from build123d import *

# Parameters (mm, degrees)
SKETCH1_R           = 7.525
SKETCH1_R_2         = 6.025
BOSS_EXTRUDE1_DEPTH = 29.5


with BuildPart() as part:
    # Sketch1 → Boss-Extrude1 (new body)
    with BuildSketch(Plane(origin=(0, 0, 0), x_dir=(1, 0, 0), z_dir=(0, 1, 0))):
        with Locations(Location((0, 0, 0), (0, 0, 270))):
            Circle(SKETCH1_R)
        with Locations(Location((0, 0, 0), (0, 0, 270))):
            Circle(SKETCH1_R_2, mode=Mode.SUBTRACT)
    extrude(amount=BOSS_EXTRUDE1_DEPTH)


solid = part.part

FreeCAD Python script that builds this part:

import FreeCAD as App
import Part
import Sketcher
from FreeCAD import Vector

doc = App.newDocument("Part")
params = doc.addObject("Spreadsheet::Sheet", "Params")
for row, (alias, value) in enumerate([
    ("sketch1_diameter", "15.05 mm"),
    ("sketch1_diameter2", "12.05 mm"),
    ("pad1_length", "29.5 mm"),
], start=1):
    params.set(f"A{row}", alias)
    params.set(f"B{row}", "=" + value)
    params.setAlias(f"B{row}", alias)

body = doc.addObject("PartDesign::Body", "Body")

sketch1 = doc.addObject("Sketcher::SketchObject", "Sketch")
body.addObject(sketch1)
sketch1.AttachmentSupport = (doc.XZ_Plane, [""])
sketch1.MapMode = "FlatFace"
sketch1.addGeometry([
    Part.Circle(Vector(0, 0, 0), Vector(0, 0, 1), 7.525),
    Part.Circle(Vector(0, 0, 0), Vector(0, 0, 1), 6.025),
], False)
sketch1.addConstraint([
    Sketcher.Constraint("Coincident", 0, 3, -1, 1),
    Sketcher.Constraint("Coincident", 1, 3, -1, 1),
    Sketcher.Constraint("Diameter", 0, 15.05),
    Sketcher.Constraint("Diameter", 1, 12.05),
])
sketch1.setExpression("Constraints[2]", "Params.sketch1_diameter")
sketch1.setExpression("Constraints[3]", "Params.sketch1_diameter2")
pad1 = doc.addObject("PartDesign::Pad", "Pad")
body.addObject(pad1)
pad1.Profile = sketch1
pad1.setExpression("Length", "Params.pad1_length")
pad1.Reversed = True

doc.recompute()
